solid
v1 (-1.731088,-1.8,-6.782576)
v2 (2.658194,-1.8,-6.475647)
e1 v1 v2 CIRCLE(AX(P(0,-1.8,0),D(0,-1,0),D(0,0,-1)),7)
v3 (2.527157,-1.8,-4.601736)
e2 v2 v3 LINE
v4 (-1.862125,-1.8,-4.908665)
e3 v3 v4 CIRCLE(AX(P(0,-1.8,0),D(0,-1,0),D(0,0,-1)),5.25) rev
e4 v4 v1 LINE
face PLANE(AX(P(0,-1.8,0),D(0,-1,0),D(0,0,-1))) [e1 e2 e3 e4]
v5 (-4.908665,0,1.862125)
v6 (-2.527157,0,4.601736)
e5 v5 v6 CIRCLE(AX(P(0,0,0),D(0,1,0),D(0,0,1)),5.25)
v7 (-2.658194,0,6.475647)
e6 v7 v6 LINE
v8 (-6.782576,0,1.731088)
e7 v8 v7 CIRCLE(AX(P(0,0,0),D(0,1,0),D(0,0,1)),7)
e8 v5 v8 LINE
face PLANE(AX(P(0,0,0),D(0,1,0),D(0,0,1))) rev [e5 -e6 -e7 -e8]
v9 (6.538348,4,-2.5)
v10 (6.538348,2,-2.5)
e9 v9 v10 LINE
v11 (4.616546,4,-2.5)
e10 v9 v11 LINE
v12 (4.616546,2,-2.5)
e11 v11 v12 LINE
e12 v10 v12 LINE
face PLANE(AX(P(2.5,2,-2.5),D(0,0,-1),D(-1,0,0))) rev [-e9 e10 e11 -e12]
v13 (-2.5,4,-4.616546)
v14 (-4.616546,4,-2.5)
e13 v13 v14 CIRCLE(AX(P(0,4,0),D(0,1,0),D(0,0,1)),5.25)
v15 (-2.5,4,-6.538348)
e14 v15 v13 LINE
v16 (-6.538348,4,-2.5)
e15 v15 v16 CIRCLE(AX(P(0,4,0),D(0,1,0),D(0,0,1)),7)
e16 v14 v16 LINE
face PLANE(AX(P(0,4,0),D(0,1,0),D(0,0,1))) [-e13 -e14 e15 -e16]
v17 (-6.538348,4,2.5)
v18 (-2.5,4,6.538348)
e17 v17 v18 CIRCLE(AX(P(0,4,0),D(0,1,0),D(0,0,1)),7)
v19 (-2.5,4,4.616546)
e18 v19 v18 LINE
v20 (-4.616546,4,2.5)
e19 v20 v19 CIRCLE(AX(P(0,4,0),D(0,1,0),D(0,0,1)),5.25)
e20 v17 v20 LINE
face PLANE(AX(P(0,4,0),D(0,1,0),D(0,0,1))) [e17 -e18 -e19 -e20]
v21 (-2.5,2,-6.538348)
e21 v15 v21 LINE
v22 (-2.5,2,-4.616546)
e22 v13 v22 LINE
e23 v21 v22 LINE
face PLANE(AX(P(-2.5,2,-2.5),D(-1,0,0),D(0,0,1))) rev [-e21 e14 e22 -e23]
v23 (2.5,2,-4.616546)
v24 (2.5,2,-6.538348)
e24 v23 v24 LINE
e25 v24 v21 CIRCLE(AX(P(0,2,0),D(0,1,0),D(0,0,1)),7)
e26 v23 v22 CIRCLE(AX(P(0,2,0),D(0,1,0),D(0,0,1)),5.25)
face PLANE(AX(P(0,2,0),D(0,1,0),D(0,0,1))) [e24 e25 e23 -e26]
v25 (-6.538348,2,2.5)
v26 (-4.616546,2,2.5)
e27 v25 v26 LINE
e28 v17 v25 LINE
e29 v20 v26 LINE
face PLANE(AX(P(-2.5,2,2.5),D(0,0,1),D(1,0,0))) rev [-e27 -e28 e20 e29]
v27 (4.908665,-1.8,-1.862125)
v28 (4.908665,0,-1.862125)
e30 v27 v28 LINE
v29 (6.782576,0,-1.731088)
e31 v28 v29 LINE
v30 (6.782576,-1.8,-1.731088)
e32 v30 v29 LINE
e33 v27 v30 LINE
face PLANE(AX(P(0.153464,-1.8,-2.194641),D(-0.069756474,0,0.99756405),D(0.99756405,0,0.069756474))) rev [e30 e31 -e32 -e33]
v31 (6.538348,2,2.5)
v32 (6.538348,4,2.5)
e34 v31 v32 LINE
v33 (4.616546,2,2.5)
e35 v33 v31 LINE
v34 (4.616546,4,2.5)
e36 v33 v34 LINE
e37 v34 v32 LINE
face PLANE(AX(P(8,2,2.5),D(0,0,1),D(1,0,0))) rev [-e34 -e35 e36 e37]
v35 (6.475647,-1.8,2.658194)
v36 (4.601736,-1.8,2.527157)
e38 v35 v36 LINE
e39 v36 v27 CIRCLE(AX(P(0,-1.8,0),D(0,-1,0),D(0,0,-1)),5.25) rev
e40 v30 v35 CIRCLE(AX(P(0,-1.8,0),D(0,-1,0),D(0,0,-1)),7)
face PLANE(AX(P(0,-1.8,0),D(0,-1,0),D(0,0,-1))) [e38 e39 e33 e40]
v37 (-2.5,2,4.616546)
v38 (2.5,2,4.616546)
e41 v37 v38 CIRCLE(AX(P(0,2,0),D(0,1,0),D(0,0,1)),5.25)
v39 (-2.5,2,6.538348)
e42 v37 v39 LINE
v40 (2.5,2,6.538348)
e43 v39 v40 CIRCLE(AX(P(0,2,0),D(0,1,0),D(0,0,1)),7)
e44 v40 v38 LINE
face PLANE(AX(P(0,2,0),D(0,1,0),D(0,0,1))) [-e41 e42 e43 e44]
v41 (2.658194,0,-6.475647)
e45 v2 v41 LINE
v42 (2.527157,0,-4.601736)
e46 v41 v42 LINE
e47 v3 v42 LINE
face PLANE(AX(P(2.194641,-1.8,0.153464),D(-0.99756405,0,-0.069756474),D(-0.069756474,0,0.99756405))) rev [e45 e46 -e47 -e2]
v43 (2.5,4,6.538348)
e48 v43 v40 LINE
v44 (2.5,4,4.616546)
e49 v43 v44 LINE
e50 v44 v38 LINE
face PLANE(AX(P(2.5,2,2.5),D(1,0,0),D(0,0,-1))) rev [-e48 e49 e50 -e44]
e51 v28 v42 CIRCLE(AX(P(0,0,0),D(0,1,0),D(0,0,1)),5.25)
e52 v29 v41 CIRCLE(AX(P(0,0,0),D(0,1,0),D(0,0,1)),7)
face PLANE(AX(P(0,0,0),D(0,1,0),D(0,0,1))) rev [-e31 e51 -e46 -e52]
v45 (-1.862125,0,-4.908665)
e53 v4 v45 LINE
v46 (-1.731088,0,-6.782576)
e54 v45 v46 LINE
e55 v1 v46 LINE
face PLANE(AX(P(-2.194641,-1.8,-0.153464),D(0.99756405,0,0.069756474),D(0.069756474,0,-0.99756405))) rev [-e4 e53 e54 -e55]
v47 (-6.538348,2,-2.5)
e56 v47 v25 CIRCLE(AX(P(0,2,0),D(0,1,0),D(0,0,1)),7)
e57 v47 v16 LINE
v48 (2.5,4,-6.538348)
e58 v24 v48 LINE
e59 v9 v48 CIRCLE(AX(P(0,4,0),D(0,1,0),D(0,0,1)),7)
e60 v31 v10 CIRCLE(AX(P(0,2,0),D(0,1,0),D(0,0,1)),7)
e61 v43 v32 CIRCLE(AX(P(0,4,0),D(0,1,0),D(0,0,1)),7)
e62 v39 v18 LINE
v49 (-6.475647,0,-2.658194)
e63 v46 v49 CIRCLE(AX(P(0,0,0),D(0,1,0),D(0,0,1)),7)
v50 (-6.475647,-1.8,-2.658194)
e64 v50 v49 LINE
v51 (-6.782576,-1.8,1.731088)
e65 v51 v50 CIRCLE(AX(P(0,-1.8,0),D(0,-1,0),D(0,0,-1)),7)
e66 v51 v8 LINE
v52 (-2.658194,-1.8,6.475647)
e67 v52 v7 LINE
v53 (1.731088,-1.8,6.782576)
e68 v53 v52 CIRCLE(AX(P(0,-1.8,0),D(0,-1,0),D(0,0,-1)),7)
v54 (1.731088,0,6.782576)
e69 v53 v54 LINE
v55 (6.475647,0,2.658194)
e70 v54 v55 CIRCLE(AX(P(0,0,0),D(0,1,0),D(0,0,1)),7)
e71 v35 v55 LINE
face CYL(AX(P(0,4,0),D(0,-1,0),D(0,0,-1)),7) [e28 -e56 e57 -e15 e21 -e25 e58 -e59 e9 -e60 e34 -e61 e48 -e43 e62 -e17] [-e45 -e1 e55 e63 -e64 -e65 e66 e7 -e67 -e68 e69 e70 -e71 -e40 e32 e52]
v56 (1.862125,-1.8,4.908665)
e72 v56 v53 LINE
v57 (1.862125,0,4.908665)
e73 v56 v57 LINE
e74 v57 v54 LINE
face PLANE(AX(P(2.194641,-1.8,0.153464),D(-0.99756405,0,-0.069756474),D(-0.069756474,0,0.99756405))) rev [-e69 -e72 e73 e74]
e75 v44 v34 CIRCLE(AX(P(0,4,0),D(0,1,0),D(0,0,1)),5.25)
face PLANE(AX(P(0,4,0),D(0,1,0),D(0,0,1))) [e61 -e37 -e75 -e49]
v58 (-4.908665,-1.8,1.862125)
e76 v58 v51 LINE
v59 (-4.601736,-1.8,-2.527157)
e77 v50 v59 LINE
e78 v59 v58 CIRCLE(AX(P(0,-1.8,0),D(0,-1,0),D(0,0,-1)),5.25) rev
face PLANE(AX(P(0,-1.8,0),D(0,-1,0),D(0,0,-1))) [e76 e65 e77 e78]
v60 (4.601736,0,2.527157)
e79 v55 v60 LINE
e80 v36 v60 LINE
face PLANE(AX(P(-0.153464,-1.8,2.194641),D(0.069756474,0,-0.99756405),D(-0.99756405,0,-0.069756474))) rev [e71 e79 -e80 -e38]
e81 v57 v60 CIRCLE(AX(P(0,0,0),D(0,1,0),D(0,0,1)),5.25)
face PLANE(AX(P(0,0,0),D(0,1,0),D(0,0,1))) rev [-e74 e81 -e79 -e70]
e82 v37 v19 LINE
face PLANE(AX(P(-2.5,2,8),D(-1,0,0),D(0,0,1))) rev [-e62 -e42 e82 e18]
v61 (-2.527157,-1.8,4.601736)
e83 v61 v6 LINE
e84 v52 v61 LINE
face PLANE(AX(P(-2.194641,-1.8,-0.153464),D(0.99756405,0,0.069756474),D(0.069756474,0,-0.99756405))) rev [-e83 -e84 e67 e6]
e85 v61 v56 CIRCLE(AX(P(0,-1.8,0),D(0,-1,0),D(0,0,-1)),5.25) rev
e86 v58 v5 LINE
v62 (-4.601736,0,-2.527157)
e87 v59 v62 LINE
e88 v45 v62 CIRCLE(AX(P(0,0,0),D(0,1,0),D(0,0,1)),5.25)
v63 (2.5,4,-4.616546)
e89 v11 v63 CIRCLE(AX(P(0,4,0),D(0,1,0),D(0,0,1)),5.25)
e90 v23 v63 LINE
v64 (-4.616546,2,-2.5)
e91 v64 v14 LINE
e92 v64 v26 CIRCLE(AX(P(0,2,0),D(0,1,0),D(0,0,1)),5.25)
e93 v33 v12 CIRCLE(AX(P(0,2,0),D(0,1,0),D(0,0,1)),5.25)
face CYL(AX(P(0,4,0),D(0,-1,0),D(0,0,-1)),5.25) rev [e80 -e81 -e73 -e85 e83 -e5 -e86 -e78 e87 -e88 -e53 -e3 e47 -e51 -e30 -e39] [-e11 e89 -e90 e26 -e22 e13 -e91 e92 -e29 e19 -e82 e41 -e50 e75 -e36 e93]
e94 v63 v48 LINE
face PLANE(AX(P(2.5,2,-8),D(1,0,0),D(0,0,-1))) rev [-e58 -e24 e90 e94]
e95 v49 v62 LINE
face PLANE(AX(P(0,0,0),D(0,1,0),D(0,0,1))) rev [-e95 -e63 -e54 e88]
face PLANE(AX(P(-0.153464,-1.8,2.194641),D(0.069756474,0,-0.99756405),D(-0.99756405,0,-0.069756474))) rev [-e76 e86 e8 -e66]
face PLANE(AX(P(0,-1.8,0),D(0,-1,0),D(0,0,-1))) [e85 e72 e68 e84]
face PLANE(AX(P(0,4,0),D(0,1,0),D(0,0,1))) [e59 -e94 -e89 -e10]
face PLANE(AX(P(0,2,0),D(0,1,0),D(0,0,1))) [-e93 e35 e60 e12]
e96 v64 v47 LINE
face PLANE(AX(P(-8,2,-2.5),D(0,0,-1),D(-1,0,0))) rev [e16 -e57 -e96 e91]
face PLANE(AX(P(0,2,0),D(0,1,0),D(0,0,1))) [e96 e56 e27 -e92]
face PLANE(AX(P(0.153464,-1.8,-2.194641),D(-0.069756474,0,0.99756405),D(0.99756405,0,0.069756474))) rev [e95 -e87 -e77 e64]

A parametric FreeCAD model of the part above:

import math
import FreeCAD as App
import Part
import Sketcher
from FreeCAD import Vector
Q = App.Units.Quantity


def add_polygon(sketch, points):
    """Adds a closed chain of lines whose ends are joined by coincident constraints."""
    first, n = sketch.GeometryCount, len(points)
    for a, b in zip(points, points[1:] + points[:1]):
        sketch.addGeometry(Part.LineSegment(App.Vector(*a, 0), App.Vector(*b, 0)), False)
    for i in range(n):
        sketch.addConstraint(Sketcher.Constraint("Coincident", first + i, 2, first + (i + 1) % n, 1))

doc = App.newDocument("Part")
body = doc.addObject("PartDesign::Body", "Body")

# Sketch on XZ plane
sketch1 = body.newObject("Sketcher::SketchObject", "Sketch")
sketch1.AttachmentSupport = (doc.getObject("XZ_Plane"), [""])
sketch1.MapMode = "FlatFace"
sketch1.addGeometry(Part.Circle(Vector(0, 0, 0), Vector(0, 0, 1), 7), False)
sketch1.addGeometry(Part.Circle(Vector(0, 0, 0), Vector(0, 0, 1), 5), False)
sketch1.addConstraint(Sketcher.Constraint("Coincident", 0, 3, -1, 1))
sketch1.addConstraint(Sketcher.Constraint("Coincident", 1, 3, -1, 1))
sketch1.addConstraint(Sketcher.Constraint("Diameter", 0, Q("14 mm")))
sketch1.addConstraint(Sketcher.Constraint("Diameter", 1, Q("10.5 mm")))
pad1 = body.newObject("PartDesign::Pad", "Pad")
pad1.Profile = sketch1
pad1.Length = 4
pad1.Reversed = True

# Sketch on XZ plane
sketch2 = body.newObject("Sketcher::SketchObject", "Sketch001")
sketch2.AttachmentSupport = (doc.getObject("XZ_Plane"), [""])
sketch2.MapMode = "FlatFace"
sketch2.AttachmentOffset = App.Placement(Vector(0, 0, -4), App.Rotation())
add_polygon(sketch2, [(-2, -8), (-2, -2), (-8, -2), (-8, 2), (-2, 2), (-2, 8), (2, 8), (2, 2), (8, 2), (8, -2), (2, -2), (2, -8)])  # lines 0-11
sketch2.addConstraint(Sketcher.Constraint("Vertical", 0))
sketch2.addConstraint(Sketcher.Constraint("Horizontal", 1))
sketch2.addConstraint(Sketcher.Constraint("Vertical", 2))
sketch2.addConstraint(Sketcher.Constraint("Horizontal", 3))
sketch2.addConstraint(Sketcher.Constraint("Vertical", 4))
sketch2.addConstraint(Sketcher.Constraint("Horizontal", 5))
sketch2.addConstraint(Sketcher.Constraint("Vertical", 6))
sketch2.addConstraint(Sketcher.Constraint("Horizontal", 7))
sketch2.addConstraint(Sketcher.Constraint("Vertical", 8))
sketch2.addConstraint(Sketcher.Constraint("Horizontal", 9))
sketch2.addConstraint(Sketcher.Constraint("Vertical", 10))
sketch2.addConstraint(Sketcher.Constraint("Horizontal", 11))
sketch2.addConstraint(Sketcher.Constraint("Symmetric", 0, 2, 6, 2, -1, 1))
sketch2.addConstraint(Sketcher.Constraint("Symmetric", 2, 2, 8, 2, -1, 1))
sketch2.addConstraint(Sketcher.Constraint("Symmetric", 4, 2, 10, 2, -1, 1))
sketch2.addConstraint(Sketcher.Constraint("Symmetric", 3, 2, 6, 2, -2))
sketch2.addConstraint(Sketcher.Constraint("Equal", 9, 0))
sketch2.addConstraint(Sketcher.Constraint("Equal", 11, 2))
sketch2.addConstraint(Sketcher.Constraint("DistanceX", 5, 1, 5, 2, Q("5 mm")))
sketch2.addConstraint(Sketcher.Constraint("DistanceX", 1, 2, 1, 1, Q("5.5 mm")))
pocket1 = body.newObject("PartDesign::Pocket", "Pocket")
pocket1.Profile = sketch2
pocket1.Length = 2
pocket1.Reversed = True

# Sketch on XZ plane
sketch3 = body.newObject("Sketcher::SketchObject", "Sketch002")
sketch3.AttachmentSupport = (doc.getObject("XZ_Plane"), [""])
sketch3.MapMode = "FlatFace"
sketch3.AttachmentOffset = App.Placement(Vector(0, 0, 1.8), App.Rotation())
sketch3.addGeometry(Part.ArcOfCircle(Part.Circle(Vector(0, 0, 0), Vector(0, 0, 1), 7), math.radians(76), math.radians(112)), False)
sketch3.addGeometry(Part.LineSegment(Vector(-2.7, 6.5, 0), Vector(-2.5, 4.6, 0)), False)
sketch3.addGeometry(Part.ArcOfCircle(Part.Circle(Vector(0, 0, 0), Vector(0, 0, 1), 5.2), math.radians(69), math.radians(119)), False)
sketch3.addGeometry(Part.LineSegment(Vector(1.9, 4.9, 0), Vector(1.7, 6.8, 0)), False)
sketch3.addGeometry(Part.LineSegment(Vector(-4.9, 1.9, 0), Vector(-6.8, 1.7, 0)), False)
sketch3.addGeometry(Part.ArcOfCircle(Part.Circle(Vector(0, 0, 0), Vector(0, 0, 1), 7), math.radians(166), math.radians(202)), False)
sketch3.addGeometry(Part.LineSegment(Vector(-6.5, -2.7, 0), Vector(-4.6, -2.5, 0)), False)
sketch3.addGeometry(Part.ArcOfCircle(Part.Circle(Vector(0, 0, 0), Vector(0, 0, 1), 5.2), math.radians(159), math.radians(209)), False)
sketch3.addGeometry(Part.LineSegment(Vector(-1.9, -4.9, 0), Vector(-1.7, -6.8, 0)), False)
sketch3.addGeometry(Part.ArcOfCircle(Part.Circle(Vector(0, 0, 0), Vector(0, 0, 1), 7), math.radians(-104), math.radians(-68)), False)
sketch3.addGeometry(Part.LineSegment(Vector(2.7, -6.5, 0), Vector(2.5, -4.6, 0)), False)
sketch3.addGeometry(Part.ArcOfCircle(Part.Circle(Vector(0, 0, 0), Vector(0, 0, 1), 5.2), math.radians(-111), math.radians(-61)), False)
sketch3.addGeometry(Part.ArcOfCircle(Part.Circle(Vector(0, 0, 0), Vector(0, 0, 1), 7), math.radians(0), math.radians(22)), False)
sketch3.addGeometry(Part.LineSegment(Vector(6.5, 2.7, 0), Vector(4.6, 2.5, 0)), False)
sketch3.addGeometry(Part.ArcOfCircle(Part.Circle(Vector(0, 0, 0), Vector(0, 0, 1), 5.3), math.radians(0), math.radians(29)), False)
sketch3.addGeometry(Part.ArcOfCircle(Part.Circle(Vector(0, 0, 0), Vector(0, 0, 1), 5.3), math.radians(-21), math.radians(0)), False)
sketch3.addGeometry(Part.LineSegment(Vector(4.9, -1.9, 0), Vector(6.8, -1.7, 0)), False)
sketch3.addGeometry(Part.ArcOfCircle(Part.Circle(Vector(0, 0, 0), Vector(0, 0, 1), 7), math.radians(-14.32), math.radians(0)), False)
sketch3.addConstraint(Sketcher.Constraint("Coincident", 0, 2, 1, 1))
sketch3.addConstraint(Sketcher.Constraint("Coincident", 1, 2, 2, 2))
sketch3.addConstraint(Sketcher.Constraint("Coincident", 2, 1, 3, 1))
sketch3.addConstraint(Sketcher.Constraint("Coincident", 3, 2, 0, 1))
sketch3.addConstraint(Sketcher.Constraint("Coincident", 4, 2, 5, 1))
sketch3.addConstraint(Sketcher.Constraint("Coincident", 5, 2, 6, 1))
sketch3.addConstraint(Sketcher.Constraint("Coincident", 6, 2, 7, 2))
sketch3.addConstraint(Sketcher.Constraint("Coincident", 7, 1, 4, 1))
sketch3.addConstraint(Sketcher.Constraint("Coincident", 8, 2, 9, 1))
sketch3.addConstraint(Sketcher.Constraint("Coincident", 9, 2, 10, 1))
sketch3.addConstraint(Sketcher.Constraint("Coincident", 10, 2, 11, 2))
sketch3.addConstraint(Sketcher.Constraint("Coincident", 11, 1, 8, 1))
sketch3.addConstraint(Sketcher.Constraint("Coincident", 12, 2, 13, 1))
sketch3.addConstraint(Sketcher.Constraint("Coincident", 13, 2, 14, 2))
sketch3.addConstraint(Sketcher.Constraint("Tangent", 14, 1, 15, 2))
sketch3.addConstraint(Sketcher.Constraint("Coincident", 15, 1, 16, 1))
sketch3.addConstraint(Sketcher.Constraint("Coincident", 16, 2, 17, 1))
sketch3.addConstraint(Sketcher.Constraint("Tangent", 17, 2, 12, 1))
sketch3.addConstraint(Sketcher.Constraint("Coincident", 0, 3, -1, 1))
sketch3.addConstraint(Sketcher.Constraint("Coincident", 2, 3, -1, 1))
sketch3.addConstraint(Sketcher.Constraint("Coincident", 5, 3, -1, 1))
sketch3.addConstraint(Sketcher.Constraint("Coincident", 7, 3, -1, 1))
sketch3.addConstraint(Sketcher.Constraint("Coincident", 9, 3, -1, 1))
sketch3.addConstraint(Sketcher.Constraint("Coincident", 11, 3, -1, 1))
sketch3.addConstraint(Sketcher.Constraint("Coincident", 12, 3, -1, 1))
sketch3.addConstraint(Sketcher.Constraint("Coincident", 14, 3, -1, 1))
sketch3.addConstraint(Sketcher.Constraint("Equal", 0, 5))
sketch3.addConstraint(Sketcher.Constraint("Equal", 2, 7))
sketch3.addConstraint(Sketcher.Constraint("Equal", 5, 9))
sketch3.addConstraint(Sketcher.Constraint("Equal", 7, 11))
sketch3.addConstraint(Sketcher.Constraint("Equal", 9, 12))
sketch3.addConstraint(Sketcher.Constraint("Equal", 11, 14))
sketch3.addConstraint(Sketcher.Constraint("Equal", 14, 15))
sketch3.addConstraint(Sketcher.Constraint("Equal", 12, 17))
sketch3.addConstraint(Sketcher.Constraint("PointOnObject", 14, 1, -1))
sketch3.addConstraint(Sketcher.Constraint("PointOnObject", 17, 2, -1))
sketch3.addConstraint(Sketcher.Constraint("Parallel", 1, 3))
sketch3.addConstraint(Sketcher.Constraint("Perpendicular", 3, 4))
sketch3.addConstraint(Sketcher.Constraint("Parallel", 4, 6))
sketch3.addConstraint(Sketcher.Constraint("Perpendicular", 6, 8))
sketch3.addConstraint(Sketcher.Constraint("Parallel", 8, 10))
sketch3.addConstraint(Sketcher.Constraint("Perpendicular", 10, 13))
sketch3.addConstraint(Sketcher.Constraint("Parallel", 13, 16))
sketch3.addConstraint(Sketcher.Constraint("Equal", 1, 3))
sketch3.addConstraint(Sketcher.Constraint("Equal", 3, 4))
sketch3.addConstraint(Sketcher.Constraint("Equal", 4, 6))
sketch3.addConstraint(Sketcher.Constraint("Equal", 6, 8))
sketch3.addConstraint(Sketcher.Constraint("Equal", 8, 10))
sketch3.addConstraint(Sketcher.Constraint("Equal", 10, 13))
sketch3.addConstraint(Sketcher.Constraint("Equal", 13, 16))
sketch3.addConstraint(Sketcher.Constraint("Radius", 0, Q("7 mm")))
sketch3.addConstraint(Sketcher.Constraint("Angle", 1, Q("-86 deg")))
sketch3.addConstraint(Sketcher.Constraint("Radius", 2, Q("5.25 mm")))
sketch3.addConstraint(Sketcher.Constraint("DistanceX", -1, 1, 3, 2, Q("1.731088 mm")))
pad2 = body.newObject("PartDesign::Pad", "Pad001")
pad2.Profile = sketch3
pad2.Length = 1.8
pad2.Reversed = True

doc.recompute()
